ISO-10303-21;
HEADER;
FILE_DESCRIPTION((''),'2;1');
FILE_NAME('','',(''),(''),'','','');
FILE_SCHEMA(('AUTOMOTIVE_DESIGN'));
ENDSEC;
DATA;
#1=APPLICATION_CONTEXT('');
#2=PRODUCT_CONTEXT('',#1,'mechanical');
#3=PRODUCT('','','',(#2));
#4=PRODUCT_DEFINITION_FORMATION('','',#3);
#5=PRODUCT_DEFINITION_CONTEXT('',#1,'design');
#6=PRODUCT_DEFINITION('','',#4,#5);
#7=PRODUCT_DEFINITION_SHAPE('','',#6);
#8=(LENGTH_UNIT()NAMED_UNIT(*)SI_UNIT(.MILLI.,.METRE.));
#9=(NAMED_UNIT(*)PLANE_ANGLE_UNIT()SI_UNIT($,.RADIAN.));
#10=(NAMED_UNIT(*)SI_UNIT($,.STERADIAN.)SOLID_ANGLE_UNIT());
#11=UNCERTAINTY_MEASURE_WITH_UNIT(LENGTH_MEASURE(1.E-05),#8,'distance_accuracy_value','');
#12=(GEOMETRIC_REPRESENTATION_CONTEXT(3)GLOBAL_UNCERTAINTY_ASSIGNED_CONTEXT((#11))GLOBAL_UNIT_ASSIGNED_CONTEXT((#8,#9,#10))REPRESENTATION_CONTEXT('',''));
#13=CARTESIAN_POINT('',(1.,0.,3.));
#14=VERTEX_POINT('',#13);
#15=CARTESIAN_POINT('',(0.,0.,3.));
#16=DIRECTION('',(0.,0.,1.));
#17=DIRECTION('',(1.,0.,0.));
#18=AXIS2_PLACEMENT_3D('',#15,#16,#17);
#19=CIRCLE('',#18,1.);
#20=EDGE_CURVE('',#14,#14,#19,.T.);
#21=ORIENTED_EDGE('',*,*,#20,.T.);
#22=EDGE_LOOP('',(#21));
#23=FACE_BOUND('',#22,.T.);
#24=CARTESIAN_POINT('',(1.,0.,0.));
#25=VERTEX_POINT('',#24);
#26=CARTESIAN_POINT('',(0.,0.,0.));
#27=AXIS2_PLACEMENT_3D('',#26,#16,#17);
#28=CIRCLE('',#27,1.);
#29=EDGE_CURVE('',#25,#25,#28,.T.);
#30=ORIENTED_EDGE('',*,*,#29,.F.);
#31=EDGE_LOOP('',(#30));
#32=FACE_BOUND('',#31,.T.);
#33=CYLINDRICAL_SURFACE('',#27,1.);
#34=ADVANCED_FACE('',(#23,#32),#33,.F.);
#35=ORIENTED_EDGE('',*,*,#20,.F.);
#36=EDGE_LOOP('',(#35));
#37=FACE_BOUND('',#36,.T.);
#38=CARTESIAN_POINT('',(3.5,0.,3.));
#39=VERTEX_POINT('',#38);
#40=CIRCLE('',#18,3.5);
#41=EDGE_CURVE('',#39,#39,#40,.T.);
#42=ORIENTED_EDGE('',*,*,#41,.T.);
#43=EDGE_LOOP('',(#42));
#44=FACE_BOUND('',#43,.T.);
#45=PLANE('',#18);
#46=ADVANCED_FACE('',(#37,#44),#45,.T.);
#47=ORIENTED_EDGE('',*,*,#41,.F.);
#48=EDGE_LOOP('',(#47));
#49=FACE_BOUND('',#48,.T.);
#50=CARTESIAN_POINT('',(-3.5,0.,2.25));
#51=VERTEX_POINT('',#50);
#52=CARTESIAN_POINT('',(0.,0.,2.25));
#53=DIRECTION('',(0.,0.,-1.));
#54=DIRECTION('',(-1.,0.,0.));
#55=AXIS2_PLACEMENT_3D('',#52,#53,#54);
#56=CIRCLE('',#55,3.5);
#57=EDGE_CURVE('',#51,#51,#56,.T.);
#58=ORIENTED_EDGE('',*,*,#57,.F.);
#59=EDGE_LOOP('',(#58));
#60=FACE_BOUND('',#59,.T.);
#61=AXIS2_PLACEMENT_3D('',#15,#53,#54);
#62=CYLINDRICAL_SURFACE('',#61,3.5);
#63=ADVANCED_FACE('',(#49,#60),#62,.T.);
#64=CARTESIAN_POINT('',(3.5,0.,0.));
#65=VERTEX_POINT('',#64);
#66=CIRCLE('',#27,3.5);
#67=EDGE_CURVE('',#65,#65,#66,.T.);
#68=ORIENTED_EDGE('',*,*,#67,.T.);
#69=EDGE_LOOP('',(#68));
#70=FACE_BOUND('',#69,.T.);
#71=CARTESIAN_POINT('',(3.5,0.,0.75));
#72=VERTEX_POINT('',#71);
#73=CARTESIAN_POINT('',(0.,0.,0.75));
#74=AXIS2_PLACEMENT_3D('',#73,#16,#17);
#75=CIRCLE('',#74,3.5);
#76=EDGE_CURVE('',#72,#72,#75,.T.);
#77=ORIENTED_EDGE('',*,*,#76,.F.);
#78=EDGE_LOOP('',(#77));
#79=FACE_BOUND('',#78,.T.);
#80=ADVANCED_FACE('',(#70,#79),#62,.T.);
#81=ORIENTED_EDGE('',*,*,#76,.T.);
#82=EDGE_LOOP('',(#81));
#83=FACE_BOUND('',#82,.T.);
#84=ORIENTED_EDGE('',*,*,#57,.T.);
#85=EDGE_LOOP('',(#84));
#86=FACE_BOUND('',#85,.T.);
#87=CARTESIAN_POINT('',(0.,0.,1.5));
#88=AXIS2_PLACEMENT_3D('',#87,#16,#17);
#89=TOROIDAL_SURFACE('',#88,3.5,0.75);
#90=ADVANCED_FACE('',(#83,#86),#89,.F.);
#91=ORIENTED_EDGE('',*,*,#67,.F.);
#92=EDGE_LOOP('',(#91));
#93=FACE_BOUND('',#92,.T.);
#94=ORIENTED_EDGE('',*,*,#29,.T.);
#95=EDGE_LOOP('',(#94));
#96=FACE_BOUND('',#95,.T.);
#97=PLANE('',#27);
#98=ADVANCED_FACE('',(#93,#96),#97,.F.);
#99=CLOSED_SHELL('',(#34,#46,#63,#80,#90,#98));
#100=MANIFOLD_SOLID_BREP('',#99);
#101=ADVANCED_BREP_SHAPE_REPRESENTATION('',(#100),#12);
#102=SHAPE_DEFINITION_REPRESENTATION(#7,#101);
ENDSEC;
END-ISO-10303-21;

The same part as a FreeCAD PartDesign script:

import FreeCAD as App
import Part
import Sketcher
Q = App.Units.Quantity

doc = App.newDocument("Part")
params = doc.addObject("Spreadsheet::Sheet", "Params")
for row, (alias, value) in enumerate([
    ("sketch1_diameter", "7 mm"),
    ("pad1_length", "3 mm"),
    ("sketch2_diameter", "1.5 mm"),
    ("groove_angle", "360 deg"),
    ("sketch3_diameter", "2 mm"),
], start=1):
    params.set(f"A{row}", alias)
    params.set(f"B{row}", "=" + value)
    params.setAlias(f"B{row}", alias)

body = doc.addObject("PartDesign::Body", "Body")

# Sketch on XY plane
sketch1 = body.newObject("Sketcher::SketchObject", "Sketch")
sketch1.AttachmentSupport = (doc.getObject("XY_Plane"), [""])
sketch1.MapMode = "FlatFace"
sketch1.addGeometry(Part.Circle(App.Vector(0, 0, 0), App.Vector(0, 0, 1), 3.5), False)
sketch1.addConstraint(Sketcher.Constraint("Coincident", 0, 3, -1, 1))
sketch1.addConstraint(Sketcher.Constraint("Diameter", 0, Q("7 mm")))
sketch1.setExpression("Constraints[1]", "Params.sketch1_diameter")
pad1 = body.newObject("PartDesign::Pad", "Pad")
pad1.Profile = sketch1
pad1.setExpression("Length", "Params.pad1_length")

# Sketch on YZ plane
sketch2 = body.newObject("Sketcher::SketchObject", "Sketch001")
sketch2.AttachmentSupport = (doc.getObject("YZ_Plane"), [""])
sketch2.MapMode = "FlatFace"
sketch2.addGeometry(Part.Circle(App.Vector(3.5, 1.5, 0), App.Vector(0, 0, 1), 0.8), False)
sketch2.addConstraint(Sketcher.Constraint("Diameter", 0, Q("1.5 mm")))
sketch2.addConstraint(Sketcher.Constraint("DistanceX", -1, 1, 0, 3, Q("3.5 mm")))
sketch2.addConstraint(Sketcher.Constraint("DistanceY", -1, 1, 0, 3, Q("1.5 mm")))
sketch2.setExpression("Constraints[0]", "Params.sketch2_diameter")
groove = body.newObject("PartDesign::Groove", "Groove")
groove.Profile = sketch2
groove.ReferenceAxis = (sketch2, ["V_Axis"])
groove.setExpression("Angle", "Params.groove_angle")

# Sketch on XY plane
sketch3 = body.newObject("Sketcher::SketchObject", "Sketch002")
sketch3.AttachmentSupport = (doc.getObject("XY_Plane"), [""])
sketch3.MapMode = "FlatFace"
sketch3.AttachmentOffset = App.Placement(App.Vector(0, 0, 3), App.Rotation())
sketch3.addGeometry(Part.Circle(App.Vector(0, 0, 0), App.Vector(0, 0, 1), 1), False)
sketch3.addConstraint(Sketcher.Constraint("Coincident", 0, 3, -1, 1))
sketch3.addConstraint(Sketcher.Constraint("Diameter", 0, Q("2 mm")))
sketch3.setExpression("Constraints[1]", "Params.sketch3_diameter")
pocket1 = body.newObject("PartDesign::Pocket", "Pocket")
pocket1.Profile = sketch3
pocket1.Type = "ThroughAll"

doc.recompute()
